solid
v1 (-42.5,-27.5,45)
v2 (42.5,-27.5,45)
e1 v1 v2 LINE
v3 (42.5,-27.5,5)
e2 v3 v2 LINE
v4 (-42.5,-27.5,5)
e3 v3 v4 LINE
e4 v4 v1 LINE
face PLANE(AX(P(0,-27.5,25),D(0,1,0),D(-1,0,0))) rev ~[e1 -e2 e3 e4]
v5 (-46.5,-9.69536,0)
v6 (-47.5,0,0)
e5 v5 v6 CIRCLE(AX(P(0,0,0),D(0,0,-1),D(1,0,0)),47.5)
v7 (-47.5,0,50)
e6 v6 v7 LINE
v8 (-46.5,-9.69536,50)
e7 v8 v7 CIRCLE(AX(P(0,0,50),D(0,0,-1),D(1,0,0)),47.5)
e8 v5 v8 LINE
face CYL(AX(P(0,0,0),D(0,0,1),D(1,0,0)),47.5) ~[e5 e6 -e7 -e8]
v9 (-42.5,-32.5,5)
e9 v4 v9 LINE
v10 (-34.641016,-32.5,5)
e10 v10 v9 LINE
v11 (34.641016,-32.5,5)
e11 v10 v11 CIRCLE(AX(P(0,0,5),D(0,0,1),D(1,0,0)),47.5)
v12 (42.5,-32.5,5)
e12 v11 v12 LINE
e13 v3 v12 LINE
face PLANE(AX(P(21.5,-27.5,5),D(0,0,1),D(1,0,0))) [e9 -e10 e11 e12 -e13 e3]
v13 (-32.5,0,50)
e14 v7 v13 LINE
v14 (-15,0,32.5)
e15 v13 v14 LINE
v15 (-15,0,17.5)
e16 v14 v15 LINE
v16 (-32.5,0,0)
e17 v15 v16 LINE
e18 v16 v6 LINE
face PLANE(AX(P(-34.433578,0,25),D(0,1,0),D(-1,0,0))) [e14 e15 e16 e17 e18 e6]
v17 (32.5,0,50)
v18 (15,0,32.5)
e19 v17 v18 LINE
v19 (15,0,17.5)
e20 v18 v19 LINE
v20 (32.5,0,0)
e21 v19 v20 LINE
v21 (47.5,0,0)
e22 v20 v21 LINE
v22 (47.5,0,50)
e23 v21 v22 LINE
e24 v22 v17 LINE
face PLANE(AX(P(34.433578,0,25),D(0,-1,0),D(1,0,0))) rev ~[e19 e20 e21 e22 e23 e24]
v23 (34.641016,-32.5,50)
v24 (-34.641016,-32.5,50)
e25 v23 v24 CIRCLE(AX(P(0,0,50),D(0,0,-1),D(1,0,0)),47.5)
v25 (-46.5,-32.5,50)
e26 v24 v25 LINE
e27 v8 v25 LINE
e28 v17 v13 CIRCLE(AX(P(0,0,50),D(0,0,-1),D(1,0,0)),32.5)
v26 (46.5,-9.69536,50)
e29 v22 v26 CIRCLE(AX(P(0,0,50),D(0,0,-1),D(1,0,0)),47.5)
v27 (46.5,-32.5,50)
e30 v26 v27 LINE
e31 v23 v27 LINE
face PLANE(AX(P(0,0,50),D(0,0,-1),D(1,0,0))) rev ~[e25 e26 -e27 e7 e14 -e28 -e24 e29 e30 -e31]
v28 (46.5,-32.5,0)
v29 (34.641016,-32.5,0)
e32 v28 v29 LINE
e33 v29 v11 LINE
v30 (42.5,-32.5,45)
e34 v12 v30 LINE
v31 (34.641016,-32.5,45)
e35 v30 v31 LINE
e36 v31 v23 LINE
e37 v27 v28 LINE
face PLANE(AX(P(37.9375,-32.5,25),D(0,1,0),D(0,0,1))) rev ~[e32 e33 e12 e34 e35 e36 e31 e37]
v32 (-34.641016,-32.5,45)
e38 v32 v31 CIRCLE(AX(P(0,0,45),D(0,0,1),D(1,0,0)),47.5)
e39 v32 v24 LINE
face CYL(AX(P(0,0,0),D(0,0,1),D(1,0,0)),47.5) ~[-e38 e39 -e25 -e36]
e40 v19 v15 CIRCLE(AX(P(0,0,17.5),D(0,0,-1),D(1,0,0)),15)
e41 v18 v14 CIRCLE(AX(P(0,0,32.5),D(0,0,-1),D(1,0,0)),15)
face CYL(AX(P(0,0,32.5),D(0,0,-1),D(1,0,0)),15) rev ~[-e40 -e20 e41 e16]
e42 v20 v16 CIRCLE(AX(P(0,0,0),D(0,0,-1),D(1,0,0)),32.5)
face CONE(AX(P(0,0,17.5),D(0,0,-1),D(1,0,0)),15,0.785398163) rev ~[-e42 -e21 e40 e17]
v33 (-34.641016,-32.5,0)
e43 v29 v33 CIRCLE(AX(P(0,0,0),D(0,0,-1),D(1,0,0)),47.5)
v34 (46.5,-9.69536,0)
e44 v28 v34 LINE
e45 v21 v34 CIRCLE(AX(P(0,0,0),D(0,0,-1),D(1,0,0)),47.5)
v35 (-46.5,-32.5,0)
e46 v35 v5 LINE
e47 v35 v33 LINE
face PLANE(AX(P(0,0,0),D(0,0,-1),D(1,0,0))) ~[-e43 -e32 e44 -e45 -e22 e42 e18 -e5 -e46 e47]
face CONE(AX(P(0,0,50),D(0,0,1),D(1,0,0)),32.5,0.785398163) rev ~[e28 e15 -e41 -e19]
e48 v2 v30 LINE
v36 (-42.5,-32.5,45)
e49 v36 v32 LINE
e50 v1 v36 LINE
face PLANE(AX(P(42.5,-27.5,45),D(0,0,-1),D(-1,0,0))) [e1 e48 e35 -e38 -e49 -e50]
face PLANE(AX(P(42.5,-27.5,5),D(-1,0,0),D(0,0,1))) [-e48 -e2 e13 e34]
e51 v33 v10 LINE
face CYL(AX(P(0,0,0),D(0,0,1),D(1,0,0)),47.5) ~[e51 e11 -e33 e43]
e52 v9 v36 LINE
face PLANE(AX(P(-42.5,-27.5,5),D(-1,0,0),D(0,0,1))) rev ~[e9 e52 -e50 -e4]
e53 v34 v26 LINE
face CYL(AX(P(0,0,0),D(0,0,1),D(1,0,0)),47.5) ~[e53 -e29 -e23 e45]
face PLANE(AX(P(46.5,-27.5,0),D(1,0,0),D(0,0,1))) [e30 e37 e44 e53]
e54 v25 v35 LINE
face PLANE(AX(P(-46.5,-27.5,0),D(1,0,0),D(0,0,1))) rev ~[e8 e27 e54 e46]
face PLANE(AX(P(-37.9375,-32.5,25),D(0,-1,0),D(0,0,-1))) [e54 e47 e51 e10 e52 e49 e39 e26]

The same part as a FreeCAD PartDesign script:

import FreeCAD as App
import Part
import Sketcher

V = App.Vector

doc = App.newDocument("Part")
body = doc.addObject("PartDesign::Body", "Body")

# Sketch on XY plane
sketch1 = body.newObject("Sketcher::SketchObject", "Sketch")
sketch1.AttachmentSupport = (doc.getObject("XY_Plane"), [""])
sketch1.MapMode = "FlatFace"
sketch1.addGeometry([
    Part.LineSegment(V(-42, 45, 0), V(-42, 5, 0)),
    Part.LineSegment(V(-42, 5, 0), V(42, 5, 0)),
    Part.LineSegment(V(42, 5, 0), V(42, 45, 0)),
    Part.LineSegment(V(42, 45, 0), V(-42, 45, 0)),
], False)
sketch1.addConstraint([
    Sketcher.Constraint("Coincident", 0, 2, 1, 1),
    Sketcher.Constraint("Coincident", 1, 2, 2, 1),
    Sketcher.Constraint("Coincident", 2, 2, 3, 1),
    Sketcher.Constraint("Coincident", 3, 2, 0, 1),
    Sketcher.Constraint("Vertical", 0),
    Sketcher.Constraint("Horizontal", 1),
    Sketcher.Constraint("Vertical", 2),
    Sketcher.Constraint("Horizontal", 3),
    Sketcher.Constraint("DistanceX", 1, 1, 1, 2, 85.0),
    Sketcher.Constraint("DistanceY", 0, 2, 0, 1, 40.0),
    Sketcher.Constraint("DistanceY", -1, 1, 0, 2, 5.0),
    Sketcher.Constraint("DistanceX", 0, 2, -1, 1, 42.5),
])
pad1 = body.newObject("PartDesign::Pad", "Pad")
pad1.Profile = sketch1
pad1.Length = 80
body2 = doc.addObject("PartDesign::Body", "Body001")
doc.recompute()

body.Placement = App.Placement(V(0, 0, 0), App.Rotation(V(1, 0, 0), 90))
boolean = body2.newObject("PartDesign::Boolean", "Boolean")
boolean.Type = "Fuse"
boolean.addObjects([body])
body3 = doc.addObject("PartDesign::Body", "Body002")
doc.recompute()

body2.Placement = App.Placement(V(0, -27.5, 0), App.Rotation(V(0, 0, 1), 0))
boolean2 = body3.newObject("PartDesign::Boolean", "Boolean001")
boolean2.Type = "Fuse"
boolean2.addObjects([body2])
body4 = doc.addObject("PartDesign::Body", "Body003")

# Sketch on XY plane
sketch2 = body4.newObject("Sketcher::SketchObject", "Sketch001")
sketch2.AttachmentSupport = (doc.getObject("XY_Plane003"), [""])
sketch2.MapMode = "FlatFace"
sketch2.addGeometry(Part.Circle(V(0, 0, 0), V(0, 0, 1), 39), False)
sketch2.addConstraint([
    Sketcher.Constraint("Coincident", 0, 3, -1, 1),
    Sketcher.Constraint("Diameter", 0, 78.190336),
])
pad2 = body4.newObject("PartDesign::Pad", "Pad001")
pad2.Profile = sketch2
pad2.Length = 60
body5 = doc.addObject("PartDesign::Body", "Body004")
body5.AllowCompound = True

# Sketch on XZ plane
sketch3 = body5.newObject("Sketcher::SketchObject", "Sketch002")
sketch3.AttachmentSupport = (doc.getObject("XZ_Plane004"), [""])
sketch3.MapMode = "FlatFace"
sketch3.AttachmentOffset = App.Placement(V(0, 0, 27.5), App.Rotation())
sketch3.addGeometry([
    Part.LineSegment(V(22, 45, 0), V(22, 50, 0)),  # 0
    Part.LineSegment(V(22, 50, 0), V(46, 50, 0)),  # 1
    Part.LineSegment(V(46, 50, 0), V(46, 0, 0)),  # 2
    Part.LineSegment(V(46, 0, 0), V(22, 0, 0)),  # 3
    Part.LineSegment(V(22, 0, 0), V(22, 5, 0)),  # 4
    Part.LineSegment(V(22, 5, 0), V(42, 5, 0)),  # 5
    Part.LineSegment(V(42, 5, 0), V(42, 45, 0)),  # 6
    Part.LineSegment(V(42, 45, 0), V(22, 45, 0)),  # 7
    Part.LineSegment(V(-22, 50, 0), V(-22, 45, 0)),  # 8
    Part.LineSegment(V(-22, 45, 0), V(-42, 45, 0)),  # 9
    Part.LineSegment(V(-42, 45, 0), V(-42, 5, 0)),  # 10
    Part.LineSegment(V(-42, 5, 0), V(-22, 5, 0)),  # 11
    Part.LineSegment(V(-22, 5, 0), V(-22, 0, 0)),  # 12
    Part.LineSegment(V(-22, 0, 0), V(-46, 0, 0)),  # 13
    Part.LineSegment(V(-46, 0, 0), V(-46, 50, 0)),  # 14
    Part.LineSegment(V(-46, 50, 0), V(-22, 50, 0)),  # 15
], False)
sketch3.addConstraint([
    Sketcher.Constraint("Coincident", 0, 2, 1, 1),
    Sketcher.Constraint("Coincident", 1, 2, 2, 1),
    Sketcher.Constraint("Coincident", 2, 2, 3, 1),
    Sketcher.Constraint("Coincident", 3, 2, 4, 1),
    Sketcher.Constraint("Coincident", 4, 2, 5, 1),
    Sketcher.Constraint("Coincident", 5, 2, 6, 1),
    Sketcher.Constraint("Coincident", 6, 2, 7, 1),
    Sketcher.Constraint("Coincident", 7, 2, 0, 1),
    Sketcher.Constraint("Coincident", 8, 2, 9, 1),
    Sketcher.Constraint("Coincident", 9, 2, 10, 1),
    Sketcher.Constraint("Coincident", 10, 2, 11, 1),
    Sketcher.Constraint("Coincident", 11, 2, 12, 1),
    Sketcher.Constraint("Coincident", 12, 2, 13, 1),
    Sketcher.Constraint("Coincident", 13, 2, 14, 1),
    Sketcher.Constraint("Coincident", 14, 2, 15, 1),
    Sketcher.Constraint("Coincident", 15, 2, 8, 1),
    Sketcher.Constraint("Vertical", 0),
    Sketcher.Constraint("Horizontal", 1),
    Sketcher.Constraint("Vertical", 2),
    Sketcher.Constraint("Horizontal", 3),
    Sketcher.Constraint("Vertical", 4),
    Sketcher.Constraint("Horizontal", 5),
    Sketcher.Constraint("Vertical", 6),
    Sketcher.Constraint("Horizontal", 7),
    Sketcher.Constraint("Vertical", 8),
    Sketcher.Constraint("Horizontal", 9),
    Sketcher.Constraint("Vertical", 10),
    Sketcher.Constraint("Horizontal", 11),
    Sketcher.Constraint("Vertical", 12),
    Sketcher.Constraint("Horizontal", 13),
    Sketcher.Constraint("Vertical", 14),
    Sketcher.Constraint("Horizontal", 15),
    Sketcher.Constraint("Symmetric", 3, 2, 12, 2, -1, 1),
    Sketcher.Constraint("Symmetric", 7, 2, 8, 2, -2),
    Sketcher.Constraint("Symmetric", 5, 2, 10, 2, -2),
    Sketcher.Constraint("Symmetric", 2, 2, 13, 2, -2),
    Sketcher.Constraint("Horizontal", 1, 2, 14, 2),
    Sketcher.Constraint("Vertical", 0, 2, 3, 2),
    Sketcher.Constraint("Equal", 0, 4),
    Sketcher.Constraint("DistanceX", 1, 1, 1, 2, 25.0),
    Sketcher.Constraint("DistanceX", 5, 1, 5, 2, 21.0),
    Sketcher.Constraint("DistanceY", 0, 1, 0, 2, 5.0),
    Sketcher.Constraint("DistanceY", 2, 2, 2, 1, 50.0),
    Sketcher.Constraint("DistanceX", 8, 2, 7, 2, 43.0),
])
pad3 = body5.newObject("PartDesign::Pad", "Pad002")
pad3.Profile = sketch3
pad3.Length = 5

# Sketch on XZ plane
sketch4 = body5.newObject("Sketcher::SketchObject", "Sketch003")
sketch4.AttachmentSupport = (doc.getObject("XZ_Plane004"), [""])
sketch4.MapMode = "FlatFace"
sketch4.AttachmentOffset = App.Placement(V(0, 0, 27.5), App.Rotation())
sketch4.addGeometry([
    Part.LineSegment(V(46, 50, 0), V(46, 0, 0)),
    Part.LineSegment(V(46, 0, 0), V(-46, 0, 0)),
    Part.LineSegment(V(-46, 0, 0), V(-46, 50, 0)),
    Part.LineSegment(V(-46, 50, 0), V(46, 50, 0)),
], False)
sketch4.addConstraint([
    Sketcher.Constraint("Coincident", 0, 2, 1, 1),
    Sketcher.Constraint("Coincident", 1, 2, 2, 1),
    Sketcher.Constraint("Coincident", 2, 2, 3, 1),
    Sketcher.Constraint("Coincident", 3, 2, 0, 1),
    Sketcher.Constraint("Vertical", 0),
    Sketcher.Constraint("Horizontal", 1),
    Sketcher.Constraint("Vertical", 2),
    Sketcher.Constraint("Horizontal", 3),
    Sketcher.Constraint("Symmetric", 0, 2, 1, 2, -1, 1),
    Sketcher.Constraint("DistanceX", 1, 2, 1, 1, 93.0),
    Sketcher.Constraint("DistanceY", 0, 2, 0, 1, 50.0),
])
pad4 = body5.newObject("PartDesign::Pad", "Pad003")
pad4.Profile = sketch4
pad4.Length = 20
pad4.Reversed = True
doc.recompute()

boolean3 = body5.newObject("PartDesign::Boolean", "Boolean002")
boolean3.Type = "Cut"
boolean3.addObjects([body4])
body6 = doc.addObject("PartDesign::Body", "Body005")

# Sketch on XZ plane
sketch5 = body6.newObject("Sketcher::SketchObject", "Sketch004")
sketch5.AttachmentSupport = (doc.getObject("XZ_Plane005"), [""])
sketch5.MapMode = "FlatFace"
sketch5.addGeometry([
    Part.LineSegment(V(32, 50, 0), V(15, 32, 0)),  # 0
    Part.LineSegment(V(15, 32, 0), V(15, 18, 0)),  # 1
    Part.LineSegment(V(15, 18, 0), V(32, 0, 0)),  # 2
    Part.LineSegment(V(32, 0, 0), V(48, 0, 0)),  # 3
    Part.LineSegment(V(48, 0, 0), V(48, 50, 0)),  # 4
    Part.LineSegment(V(48, 50, 0), V(32, 50, 0)),  # 5
], False)
sketch5.addConstraint([
    Sketcher.Constraint("Coincident", 0, 2, 1, 1),
    Sketcher.Constraint("Coincident", 1, 2, 2, 1),
    Sketcher.Constraint("Coincident", 2, 2, 3, 1),
    Sketcher.Constraint("Coincident", 3, 2, 4, 1),
    Sketcher.Constraint("Coincident", 4, 2, 5, 1),
    Sketcher.Constraint("Coincident", 5, 2, 0, 1),
    Sketcher.Constraint("Vertical", 1),
    Sketcher.Constraint("Horizontal", 3),
    Sketcher.Constraint("Vertical", 4),
    Sketcher.Constraint("Horizontal", 5),
    Sketcher.Constraint("PointOnObject", 2, 2, -1),
    Sketcher.Constraint("Perpendicular", 0, 2),
    Sketcher.Constraint("Vertical", 2, 2, 5, 2),
    Sketcher.Constraint("Equal", 5, 1),
    Sketcher.Constraint("Equal", 0, 2),
    Sketcher.Constraint("DistanceX", 3, 1, 3, 2, 15.0),
    Sketcher.Constraint("DistanceY", 4, 1, 4, 2, 50.0),
    Sketcher.Constraint("DistanceX", -1, 1, 0, 2, 15.0),
])
revolution = body6.newObject("PartDesign::Revolution", "Revolution")
revolution.Profile = sketch5
revolution.ReferenceAxis = (sketch5, ["V_Axis"])
revolution.Angle = 180
revolution.Reversed = True
doc.recompute()

boolean4 = body6.newObject("PartDesign::Boolean", "Boolean003")
boolean4.Type = "Fuse"
boolean4.addObjects([body5])
doc.recompute()

boolean5 = body6.newObject("PartDesign::Boolean", "Boolean004")
boolean5.Type = "Cut"
boolean5.addObjects([body3])

doc.recompute()
